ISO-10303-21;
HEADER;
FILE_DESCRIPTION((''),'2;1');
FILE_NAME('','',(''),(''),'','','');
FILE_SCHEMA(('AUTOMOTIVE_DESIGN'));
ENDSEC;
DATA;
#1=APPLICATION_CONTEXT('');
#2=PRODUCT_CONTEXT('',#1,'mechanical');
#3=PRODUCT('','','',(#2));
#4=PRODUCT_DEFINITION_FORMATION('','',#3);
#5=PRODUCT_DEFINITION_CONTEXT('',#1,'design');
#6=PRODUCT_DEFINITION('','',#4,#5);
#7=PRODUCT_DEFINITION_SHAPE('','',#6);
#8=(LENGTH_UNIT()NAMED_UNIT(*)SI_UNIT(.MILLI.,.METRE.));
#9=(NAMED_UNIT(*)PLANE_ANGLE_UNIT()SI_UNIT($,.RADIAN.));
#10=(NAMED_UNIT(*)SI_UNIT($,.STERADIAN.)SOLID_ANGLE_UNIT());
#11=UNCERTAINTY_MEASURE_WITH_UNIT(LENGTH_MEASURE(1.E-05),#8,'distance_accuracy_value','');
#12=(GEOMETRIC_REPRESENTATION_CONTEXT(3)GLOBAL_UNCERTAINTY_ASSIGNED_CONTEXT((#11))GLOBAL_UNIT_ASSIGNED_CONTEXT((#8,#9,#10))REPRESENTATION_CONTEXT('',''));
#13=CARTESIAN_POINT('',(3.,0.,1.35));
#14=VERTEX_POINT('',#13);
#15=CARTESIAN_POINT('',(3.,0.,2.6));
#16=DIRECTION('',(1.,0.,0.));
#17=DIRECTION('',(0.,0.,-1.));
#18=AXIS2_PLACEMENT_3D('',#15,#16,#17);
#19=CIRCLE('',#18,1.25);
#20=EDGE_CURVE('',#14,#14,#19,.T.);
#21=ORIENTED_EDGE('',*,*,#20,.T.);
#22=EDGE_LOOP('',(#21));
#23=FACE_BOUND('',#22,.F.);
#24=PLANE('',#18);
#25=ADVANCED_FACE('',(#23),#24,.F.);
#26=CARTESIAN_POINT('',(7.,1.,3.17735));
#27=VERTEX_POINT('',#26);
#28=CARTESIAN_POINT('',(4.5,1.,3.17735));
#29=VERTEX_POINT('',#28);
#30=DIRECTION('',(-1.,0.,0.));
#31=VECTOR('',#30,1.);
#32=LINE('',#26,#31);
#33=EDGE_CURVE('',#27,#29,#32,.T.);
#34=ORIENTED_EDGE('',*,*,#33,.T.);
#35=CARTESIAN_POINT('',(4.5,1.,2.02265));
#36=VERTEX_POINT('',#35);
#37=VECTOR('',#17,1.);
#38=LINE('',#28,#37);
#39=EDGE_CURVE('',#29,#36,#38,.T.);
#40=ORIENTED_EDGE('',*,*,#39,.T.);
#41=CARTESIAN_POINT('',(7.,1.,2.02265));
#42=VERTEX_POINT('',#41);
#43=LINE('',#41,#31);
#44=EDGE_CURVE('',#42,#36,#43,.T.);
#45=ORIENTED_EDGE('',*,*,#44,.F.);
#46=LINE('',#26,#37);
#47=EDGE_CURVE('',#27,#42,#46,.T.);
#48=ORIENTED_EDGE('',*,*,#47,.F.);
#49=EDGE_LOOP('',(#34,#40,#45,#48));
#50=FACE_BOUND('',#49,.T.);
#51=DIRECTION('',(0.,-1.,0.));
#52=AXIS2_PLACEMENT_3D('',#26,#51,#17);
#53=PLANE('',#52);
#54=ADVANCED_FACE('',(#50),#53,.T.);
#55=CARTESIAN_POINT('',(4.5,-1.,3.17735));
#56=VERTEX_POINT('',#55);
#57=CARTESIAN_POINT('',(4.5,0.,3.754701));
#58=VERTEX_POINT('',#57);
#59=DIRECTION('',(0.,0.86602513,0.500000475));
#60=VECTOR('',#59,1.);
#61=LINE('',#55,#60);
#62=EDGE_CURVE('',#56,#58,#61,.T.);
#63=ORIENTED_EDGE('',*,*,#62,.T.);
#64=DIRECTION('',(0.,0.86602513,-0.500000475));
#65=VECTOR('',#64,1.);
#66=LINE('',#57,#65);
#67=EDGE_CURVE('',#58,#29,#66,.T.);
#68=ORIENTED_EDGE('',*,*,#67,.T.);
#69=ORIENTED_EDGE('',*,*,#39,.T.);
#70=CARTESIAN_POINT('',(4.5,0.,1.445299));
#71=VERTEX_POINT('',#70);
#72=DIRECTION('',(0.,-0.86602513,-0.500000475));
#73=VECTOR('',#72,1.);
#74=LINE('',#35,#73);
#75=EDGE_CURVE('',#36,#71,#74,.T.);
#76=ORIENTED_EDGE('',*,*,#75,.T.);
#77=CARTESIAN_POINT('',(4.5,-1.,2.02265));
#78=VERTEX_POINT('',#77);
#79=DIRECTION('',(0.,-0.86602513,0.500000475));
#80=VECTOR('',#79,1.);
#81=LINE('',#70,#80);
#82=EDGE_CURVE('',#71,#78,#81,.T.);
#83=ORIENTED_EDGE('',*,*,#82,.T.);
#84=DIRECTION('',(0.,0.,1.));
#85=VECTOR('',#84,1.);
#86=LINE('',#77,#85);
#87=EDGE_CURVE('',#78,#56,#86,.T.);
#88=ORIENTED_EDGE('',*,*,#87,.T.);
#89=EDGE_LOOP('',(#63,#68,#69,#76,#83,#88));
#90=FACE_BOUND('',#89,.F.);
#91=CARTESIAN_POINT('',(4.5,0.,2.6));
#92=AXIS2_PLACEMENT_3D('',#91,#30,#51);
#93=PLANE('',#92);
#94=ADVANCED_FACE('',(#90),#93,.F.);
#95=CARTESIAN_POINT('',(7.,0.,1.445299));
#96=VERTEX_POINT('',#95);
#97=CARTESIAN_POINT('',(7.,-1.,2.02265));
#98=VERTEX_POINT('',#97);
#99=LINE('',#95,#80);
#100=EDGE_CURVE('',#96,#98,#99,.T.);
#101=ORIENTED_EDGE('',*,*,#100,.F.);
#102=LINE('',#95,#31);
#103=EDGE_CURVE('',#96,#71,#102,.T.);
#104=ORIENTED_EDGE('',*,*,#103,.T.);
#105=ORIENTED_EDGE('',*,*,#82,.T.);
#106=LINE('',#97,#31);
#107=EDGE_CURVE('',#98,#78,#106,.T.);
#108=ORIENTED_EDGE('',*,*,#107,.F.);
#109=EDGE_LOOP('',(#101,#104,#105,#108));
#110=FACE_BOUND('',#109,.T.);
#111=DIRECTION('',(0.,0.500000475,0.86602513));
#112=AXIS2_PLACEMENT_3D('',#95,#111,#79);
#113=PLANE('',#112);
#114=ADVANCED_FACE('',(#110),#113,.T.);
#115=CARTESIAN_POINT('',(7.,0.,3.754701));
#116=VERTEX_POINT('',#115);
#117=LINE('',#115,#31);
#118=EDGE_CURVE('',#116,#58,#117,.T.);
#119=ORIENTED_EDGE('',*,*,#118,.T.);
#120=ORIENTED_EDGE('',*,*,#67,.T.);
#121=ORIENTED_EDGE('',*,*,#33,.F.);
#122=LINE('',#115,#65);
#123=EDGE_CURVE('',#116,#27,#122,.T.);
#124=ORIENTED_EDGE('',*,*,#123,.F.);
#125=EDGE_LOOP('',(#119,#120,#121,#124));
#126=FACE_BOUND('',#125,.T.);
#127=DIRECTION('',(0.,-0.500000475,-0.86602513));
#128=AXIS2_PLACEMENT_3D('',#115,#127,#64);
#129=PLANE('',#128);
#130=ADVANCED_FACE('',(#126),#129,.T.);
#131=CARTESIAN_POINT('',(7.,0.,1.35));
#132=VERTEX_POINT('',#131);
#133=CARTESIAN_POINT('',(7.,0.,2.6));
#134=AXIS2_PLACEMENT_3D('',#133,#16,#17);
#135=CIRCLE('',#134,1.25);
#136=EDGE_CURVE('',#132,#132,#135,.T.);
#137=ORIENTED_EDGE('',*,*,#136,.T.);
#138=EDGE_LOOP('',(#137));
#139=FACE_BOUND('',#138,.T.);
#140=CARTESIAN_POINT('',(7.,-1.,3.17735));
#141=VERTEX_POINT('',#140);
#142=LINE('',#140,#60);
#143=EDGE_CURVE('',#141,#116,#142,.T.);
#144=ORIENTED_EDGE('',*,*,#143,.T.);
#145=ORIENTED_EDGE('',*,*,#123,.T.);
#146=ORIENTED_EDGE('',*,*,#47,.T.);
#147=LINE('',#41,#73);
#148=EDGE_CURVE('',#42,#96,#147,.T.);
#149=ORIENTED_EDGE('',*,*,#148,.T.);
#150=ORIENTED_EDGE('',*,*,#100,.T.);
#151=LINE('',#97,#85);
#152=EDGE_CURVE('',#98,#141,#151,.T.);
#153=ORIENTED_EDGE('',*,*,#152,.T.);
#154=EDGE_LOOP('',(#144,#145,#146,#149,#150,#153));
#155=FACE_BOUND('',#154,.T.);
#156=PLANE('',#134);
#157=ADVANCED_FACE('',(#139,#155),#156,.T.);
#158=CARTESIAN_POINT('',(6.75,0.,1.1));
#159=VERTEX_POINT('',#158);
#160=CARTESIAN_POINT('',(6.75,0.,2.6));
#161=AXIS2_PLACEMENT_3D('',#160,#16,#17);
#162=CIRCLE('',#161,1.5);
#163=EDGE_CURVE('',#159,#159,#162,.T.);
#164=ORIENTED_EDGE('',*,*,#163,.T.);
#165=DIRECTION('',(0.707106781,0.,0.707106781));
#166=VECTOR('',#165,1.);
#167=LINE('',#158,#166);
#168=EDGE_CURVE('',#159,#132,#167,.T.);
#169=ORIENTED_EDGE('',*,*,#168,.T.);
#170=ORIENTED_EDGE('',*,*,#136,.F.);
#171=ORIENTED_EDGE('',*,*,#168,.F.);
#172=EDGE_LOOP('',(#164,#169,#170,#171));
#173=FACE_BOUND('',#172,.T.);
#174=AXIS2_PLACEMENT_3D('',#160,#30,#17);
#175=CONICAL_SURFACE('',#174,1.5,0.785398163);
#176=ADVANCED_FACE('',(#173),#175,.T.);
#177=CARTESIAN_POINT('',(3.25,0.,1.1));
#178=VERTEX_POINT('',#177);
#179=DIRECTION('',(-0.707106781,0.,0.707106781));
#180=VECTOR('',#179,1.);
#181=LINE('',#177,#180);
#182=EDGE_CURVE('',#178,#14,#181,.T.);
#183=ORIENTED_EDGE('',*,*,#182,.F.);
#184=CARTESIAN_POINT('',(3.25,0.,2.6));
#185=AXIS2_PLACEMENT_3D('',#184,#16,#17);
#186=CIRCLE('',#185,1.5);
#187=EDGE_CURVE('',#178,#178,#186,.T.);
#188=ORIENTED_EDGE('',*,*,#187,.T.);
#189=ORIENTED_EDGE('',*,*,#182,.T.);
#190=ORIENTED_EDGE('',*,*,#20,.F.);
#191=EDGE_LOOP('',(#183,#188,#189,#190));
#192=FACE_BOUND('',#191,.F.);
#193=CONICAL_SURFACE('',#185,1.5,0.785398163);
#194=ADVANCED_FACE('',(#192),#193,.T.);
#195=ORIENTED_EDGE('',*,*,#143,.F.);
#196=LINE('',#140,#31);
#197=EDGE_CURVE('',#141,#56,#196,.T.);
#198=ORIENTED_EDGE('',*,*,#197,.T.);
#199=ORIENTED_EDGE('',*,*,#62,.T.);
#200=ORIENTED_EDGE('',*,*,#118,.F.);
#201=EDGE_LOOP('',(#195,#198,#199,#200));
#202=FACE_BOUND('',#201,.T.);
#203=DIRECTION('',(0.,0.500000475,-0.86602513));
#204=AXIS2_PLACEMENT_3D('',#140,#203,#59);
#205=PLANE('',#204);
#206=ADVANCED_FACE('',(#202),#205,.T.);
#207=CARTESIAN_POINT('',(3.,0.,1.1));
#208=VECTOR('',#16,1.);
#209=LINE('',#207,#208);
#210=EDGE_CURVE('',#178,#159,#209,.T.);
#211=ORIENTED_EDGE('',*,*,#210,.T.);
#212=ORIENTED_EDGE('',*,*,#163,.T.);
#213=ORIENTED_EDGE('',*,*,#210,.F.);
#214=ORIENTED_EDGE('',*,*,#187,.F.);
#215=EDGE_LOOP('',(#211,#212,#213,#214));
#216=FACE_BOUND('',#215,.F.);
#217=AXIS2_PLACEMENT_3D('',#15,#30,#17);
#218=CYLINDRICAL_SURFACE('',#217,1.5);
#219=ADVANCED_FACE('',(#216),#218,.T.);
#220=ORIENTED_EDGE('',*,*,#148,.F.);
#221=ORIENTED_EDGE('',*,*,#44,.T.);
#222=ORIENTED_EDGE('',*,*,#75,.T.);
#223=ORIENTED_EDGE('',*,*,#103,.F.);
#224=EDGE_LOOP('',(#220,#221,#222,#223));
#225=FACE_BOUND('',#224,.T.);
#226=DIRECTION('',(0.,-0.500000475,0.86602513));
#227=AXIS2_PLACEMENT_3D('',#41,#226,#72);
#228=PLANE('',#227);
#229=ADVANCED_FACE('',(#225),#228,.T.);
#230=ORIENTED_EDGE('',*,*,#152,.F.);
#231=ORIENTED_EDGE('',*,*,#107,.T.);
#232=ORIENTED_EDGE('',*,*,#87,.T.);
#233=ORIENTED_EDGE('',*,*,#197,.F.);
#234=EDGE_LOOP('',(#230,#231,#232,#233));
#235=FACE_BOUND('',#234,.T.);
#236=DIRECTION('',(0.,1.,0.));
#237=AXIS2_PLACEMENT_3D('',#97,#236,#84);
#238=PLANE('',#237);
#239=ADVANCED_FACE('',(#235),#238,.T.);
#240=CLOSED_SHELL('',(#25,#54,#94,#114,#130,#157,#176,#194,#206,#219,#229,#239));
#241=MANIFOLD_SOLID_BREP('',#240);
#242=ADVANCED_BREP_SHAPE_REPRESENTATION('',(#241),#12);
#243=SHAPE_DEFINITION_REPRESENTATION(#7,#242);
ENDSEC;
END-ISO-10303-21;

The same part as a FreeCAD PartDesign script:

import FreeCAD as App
import Part
import Sketcher
Q = App.Units.Quantity


def edges_at(feature, points):
    """Names of the edges that pass closest to the given points."""
    edges = feature.Shape.Edges
    near = lambda p: min(range(len(edges)), key=lambda i: edges[i].distToShape(Part.Vertex(*p))[0])
    return sorted({f"Edge{near(p) + 1}" for p in points})

doc = App.newDocument("Part")
params = doc.addObject("Spreadsheet::Sheet", "Params")
for row, (alias, value) in enumerate([
    ("sketch1_diameter", "3 mm"),
    ("pad1_length", "4 mm"),
    ("chamfer_size", "0.25 mm"),
    ("pocket1_length", "2.5 mm"),
], start=1):
    params.set(f"A{row}", alias)
    params.set(f"B{row}", "=" + value)
    params.setAlias(f"B{row}", alias)

body = doc.addObject("PartDesign::Body", "Body")

# Sketch on YZ plane
sketch1 = body.newObject("Sketcher::SketchObject", "Sketch")
sketch1.AttachmentSupport = (doc.getObject("YZ_Plane"), [""])
sketch1.MapMode = "FlatFace"
sketch1.AttachmentOffset = App.Placement(App.Vector(0, 0, 3), App.Rotation())
sketch1.addGeometry(Part.Circle(App.Vector(0, 2.6, 0), App.Vector(0, 0, 1), 1.5), False)
sketch1.addConstraint([
    Sketcher.Constraint("PointOnObject", 0, 3, -2),
    Sketcher.Constraint("Diameter", 0, Q("3 mm")),
    Sketcher.Constraint("DistanceY", -1, 1, 0, 3, Q("2.6 mm")),
])
sketch1.setExpression("Constraints[1]", "Params.sketch1_diameter")
pad1 = body.newObject("PartDesign::Pad", "Pad")
pad1.Profile = sketch1
pad1.setExpression("Length", "Params.pad1_length")
doc.recompute()

chamfer = body.newObject("PartDesign::Chamfer", "Chamfer")
chamfer.Base = (pad1, edges_at(pad1, [(7, 0, 4.1), (3, 0, 4.1)]))
chamfer.setExpression("Size", "Params.chamfer_size")

# Sketch on YZ plane
sketch2 = body.newObject("Sketcher::SketchObject", "Sketch001")
sketch2.AttachmentSupport = (doc.getObject("YZ_Plane"), [""])
sketch2.MapMode = "FlatFace"
sketch2.AttachmentOffset = App.Placement(App.Vector(0, 0, 7), App.Rotation())
sketch2.addGeometry([
    Part.LineSegment(App.Vector(0, 3.8, 0), App.Vector(-1, 3.2, 0)),  # 0
    Part.LineSegment(App.Vector(-1, 3.2, 0), App.Vector(-1, 2, 0)),  # 1
    Part.LineSegment(App.Vector(-1, 2, 0), App.Vector(0, 1.4, 0)),  # 2
    Part.LineSegment(App.Vector(0, 1.4, 0), App.Vector(1, 2, 0)),  # 3
    Part.LineSegment(App.Vector(1, 2, 0), App.Vector(1, 3.2, 0)),  # 4
    Part.LineSegment(App.Vector(1, 3.2, 0), App.Vector(0, 3.8, 0)),  # 5
], False)
sketch2.addConstraint([
    Sketcher.Constraint("Coincident", 0, 2, 1, 1),
    Sketcher.Constraint("Coincident", 1, 2, 2, 1),
    Sketcher.Constraint("Coincident", 2, 2, 3, 1),
    Sketcher.Constraint("Coincident", 3, 2, 4, 1),
    Sketcher.Constraint("Coincident", 4, 2, 5, 1),
    Sketcher.Constraint("Coincident", 5, 2, 0, 1),
    Sketcher.Constraint("Vertical", 1),
    Sketcher.Constraint("Vertical", 4),
    Sketcher.Constraint("Symmetric", 1, 2, 3, 2, -2),
    Sketcher.Constraint("PointOnObject", 2, 2, -2),
    Sketcher.Constraint("PointOnObject", 5, 2, -2),
    Sketcher.Constraint("Parallel", 0, 3),
    Sketcher.Constraint("Parallel", 2, 5),
    Sketcher.Constraint("DistanceX", 0, 2, -1, 1, Q("1 mm")),
    Sketcher.Constraint("DistanceY", 1, 2, 1, 1, Q("1.1547 mm")),
    Sketcher.Constraint("Distance", 0, Q("1.154701 mm")),
    Sketcher.Constraint("DistanceY", -1, 1, 2, 2, Q("1.445299 mm")),
])
pocket1 = body.newObject("PartDesign::Pocket", "Pocket")
pocket1.Profile = sketch2
pocket1.setExpression("Length", "Params.pocket1_length")

doc.recompute()
